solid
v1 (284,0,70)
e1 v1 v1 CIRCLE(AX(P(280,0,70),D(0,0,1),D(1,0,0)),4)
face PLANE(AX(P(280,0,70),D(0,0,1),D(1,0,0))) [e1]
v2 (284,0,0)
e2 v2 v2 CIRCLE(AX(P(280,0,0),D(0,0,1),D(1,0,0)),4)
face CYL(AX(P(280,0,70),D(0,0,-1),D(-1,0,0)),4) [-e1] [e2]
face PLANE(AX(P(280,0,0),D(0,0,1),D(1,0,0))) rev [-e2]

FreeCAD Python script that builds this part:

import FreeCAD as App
import Part
import Sketcher

doc = App.newDocument("Part")
body = doc.addObject("PartDesign::Body", "Body")

sketch1 = body.newObject("Sketcher::SketchObject", "Sketch")
sketch1.AttachmentSupport = (doc.getObject("XY_Plane"), [""])
sketch1.MapMode = "FlatFace"
sketch1.addGeometry(Part.Circle(App.Vector(280, 0, 0), App.Vector(0, 0, 1), 4), False)
sketch1.addConstraint([
    Sketcher.Constraint("PointOnObject", 0, 3, -1),
    Sketcher.Constraint("Diameter", 0, 8.0),
    Sketcher.Constraint("DistanceX", -1, 1, 0, 3, 280.0),
])
pad1 = body.newObject("PartDesign::Pad", "Pad")
pad1.Profile = sketch1
pad1.Length = 70

doc.recompute()
